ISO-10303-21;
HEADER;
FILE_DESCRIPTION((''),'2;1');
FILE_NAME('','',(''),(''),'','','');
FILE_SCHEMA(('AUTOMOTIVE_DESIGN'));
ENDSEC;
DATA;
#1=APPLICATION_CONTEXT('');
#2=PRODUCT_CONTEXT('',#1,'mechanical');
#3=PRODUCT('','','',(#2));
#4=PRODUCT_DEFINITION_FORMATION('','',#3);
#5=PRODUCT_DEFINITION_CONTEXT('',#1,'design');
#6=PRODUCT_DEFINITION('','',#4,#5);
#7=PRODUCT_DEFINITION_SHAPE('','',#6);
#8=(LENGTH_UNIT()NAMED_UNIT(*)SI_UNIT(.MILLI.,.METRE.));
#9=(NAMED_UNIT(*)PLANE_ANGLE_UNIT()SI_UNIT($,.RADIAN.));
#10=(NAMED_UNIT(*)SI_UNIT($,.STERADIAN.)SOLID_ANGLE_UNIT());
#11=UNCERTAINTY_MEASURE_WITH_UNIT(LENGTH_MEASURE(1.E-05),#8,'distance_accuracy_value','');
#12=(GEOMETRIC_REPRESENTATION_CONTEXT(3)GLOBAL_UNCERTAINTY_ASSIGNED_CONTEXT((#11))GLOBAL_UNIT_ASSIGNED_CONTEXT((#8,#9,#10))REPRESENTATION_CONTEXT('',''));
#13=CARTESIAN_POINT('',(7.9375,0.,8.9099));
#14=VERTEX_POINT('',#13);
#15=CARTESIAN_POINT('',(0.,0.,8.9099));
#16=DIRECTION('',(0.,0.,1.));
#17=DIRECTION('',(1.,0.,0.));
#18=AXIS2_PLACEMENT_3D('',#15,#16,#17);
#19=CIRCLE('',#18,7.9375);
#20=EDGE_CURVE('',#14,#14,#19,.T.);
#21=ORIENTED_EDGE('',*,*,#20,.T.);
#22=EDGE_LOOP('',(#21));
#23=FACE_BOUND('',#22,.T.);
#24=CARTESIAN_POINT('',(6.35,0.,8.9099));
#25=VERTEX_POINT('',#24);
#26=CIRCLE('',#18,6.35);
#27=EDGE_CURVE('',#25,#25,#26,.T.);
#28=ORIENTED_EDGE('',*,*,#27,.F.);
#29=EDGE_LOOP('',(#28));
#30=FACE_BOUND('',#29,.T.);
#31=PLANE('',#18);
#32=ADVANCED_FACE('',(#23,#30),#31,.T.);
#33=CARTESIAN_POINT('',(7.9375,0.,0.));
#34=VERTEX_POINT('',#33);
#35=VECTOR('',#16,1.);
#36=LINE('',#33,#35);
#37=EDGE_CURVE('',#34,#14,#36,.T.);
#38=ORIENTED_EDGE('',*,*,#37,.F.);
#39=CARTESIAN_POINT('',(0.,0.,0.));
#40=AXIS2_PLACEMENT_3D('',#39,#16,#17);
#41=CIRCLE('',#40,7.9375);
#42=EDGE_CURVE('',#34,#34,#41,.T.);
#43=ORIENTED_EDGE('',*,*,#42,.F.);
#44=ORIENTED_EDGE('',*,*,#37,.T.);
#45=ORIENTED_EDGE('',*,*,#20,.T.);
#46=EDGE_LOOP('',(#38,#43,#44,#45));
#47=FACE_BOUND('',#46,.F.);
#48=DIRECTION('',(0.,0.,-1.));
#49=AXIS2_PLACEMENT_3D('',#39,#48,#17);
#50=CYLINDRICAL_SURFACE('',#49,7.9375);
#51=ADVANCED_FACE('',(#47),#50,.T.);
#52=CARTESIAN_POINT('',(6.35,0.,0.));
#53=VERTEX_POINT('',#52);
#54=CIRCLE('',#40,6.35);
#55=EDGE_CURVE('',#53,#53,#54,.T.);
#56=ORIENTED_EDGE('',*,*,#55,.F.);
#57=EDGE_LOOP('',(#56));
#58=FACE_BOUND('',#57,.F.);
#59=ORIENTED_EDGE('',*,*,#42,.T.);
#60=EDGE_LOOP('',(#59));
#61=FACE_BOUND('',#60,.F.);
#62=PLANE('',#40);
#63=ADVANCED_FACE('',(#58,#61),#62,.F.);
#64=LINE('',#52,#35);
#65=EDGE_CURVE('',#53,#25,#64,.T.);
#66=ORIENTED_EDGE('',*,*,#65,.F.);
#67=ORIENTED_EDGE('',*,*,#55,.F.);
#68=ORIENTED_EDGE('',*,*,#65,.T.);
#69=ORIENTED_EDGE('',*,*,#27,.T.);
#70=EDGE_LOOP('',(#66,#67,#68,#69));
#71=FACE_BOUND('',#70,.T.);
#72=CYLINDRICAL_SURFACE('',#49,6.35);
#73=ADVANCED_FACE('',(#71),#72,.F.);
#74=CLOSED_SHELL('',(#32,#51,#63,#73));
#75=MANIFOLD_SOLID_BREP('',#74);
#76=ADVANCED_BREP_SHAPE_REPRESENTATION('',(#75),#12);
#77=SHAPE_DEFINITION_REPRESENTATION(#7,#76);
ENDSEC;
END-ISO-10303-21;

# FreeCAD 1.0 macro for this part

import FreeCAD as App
import Part
import Sketcher
Q = App.Units.Quantity

doc = App.newDocument("Part")
body = doc.addObject("PartDesign::Body", "Body")

# Sketch on XY plane
sketch1 = body.newObject("Sketcher::SketchObject", "Sketch")
sketch1.AttachmentSupport = (doc.getObject("XY_Plane"), [""])
sketch1.MapMode = "FlatFace"
sketch1.addGeometry([
    Part.Circle(App.Vector(0, 0, 0), App.Vector(0, 0, 1), 8),
    Part.Circle(App.Vector(0, 0, 0), App.Vector(0, 0, 1), 6),
], False)
sketch1.addConstraint([
    Sketcher.Constraint("Coincident", 0, 3, -1, 1),
    Sketcher.Constraint("Coincident", 1, 3, -1, 1),
    Sketcher.Constraint("Diameter", 1, Q("0.5 in")),
    Sketcher.Constraint("Diameter", 0, Q("0.625 in")),
])
pad1 = body.newObject("PartDesign::Pad", "Pad")
pad1.Profile = sketch1
pad1.Length = 8.9099

doc.recompute()
